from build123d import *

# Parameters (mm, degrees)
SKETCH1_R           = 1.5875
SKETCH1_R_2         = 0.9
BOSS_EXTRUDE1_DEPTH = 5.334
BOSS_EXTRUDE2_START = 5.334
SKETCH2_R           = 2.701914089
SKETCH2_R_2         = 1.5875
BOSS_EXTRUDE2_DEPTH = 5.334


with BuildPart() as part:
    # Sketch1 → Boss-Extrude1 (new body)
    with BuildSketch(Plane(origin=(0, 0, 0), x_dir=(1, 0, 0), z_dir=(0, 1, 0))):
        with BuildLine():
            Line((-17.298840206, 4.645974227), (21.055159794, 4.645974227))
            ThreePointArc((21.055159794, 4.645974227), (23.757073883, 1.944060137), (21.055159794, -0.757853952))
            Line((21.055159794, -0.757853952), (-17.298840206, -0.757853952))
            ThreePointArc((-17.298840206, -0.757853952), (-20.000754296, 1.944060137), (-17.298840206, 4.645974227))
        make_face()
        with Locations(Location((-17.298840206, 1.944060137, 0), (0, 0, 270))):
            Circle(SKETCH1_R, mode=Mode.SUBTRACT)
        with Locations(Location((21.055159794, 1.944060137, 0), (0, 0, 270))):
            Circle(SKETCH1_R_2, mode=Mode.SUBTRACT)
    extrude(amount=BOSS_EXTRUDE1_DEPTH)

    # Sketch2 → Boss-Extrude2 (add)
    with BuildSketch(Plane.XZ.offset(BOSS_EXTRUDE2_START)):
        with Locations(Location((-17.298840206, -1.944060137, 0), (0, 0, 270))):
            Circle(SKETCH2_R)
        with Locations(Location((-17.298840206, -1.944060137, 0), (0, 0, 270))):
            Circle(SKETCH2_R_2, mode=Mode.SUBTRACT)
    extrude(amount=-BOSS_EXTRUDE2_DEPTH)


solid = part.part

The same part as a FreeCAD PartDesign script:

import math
import FreeCAD as App
import Part
import Sketcher

V = App.Vector
Q = App.Units.Quantity

doc = App.newDocument("Part")
body = doc.addObject("PartDesign::Body", "Body")

# Sketch on XZ plane
sketch1 = body.newObject("Sketcher::SketchObject", "Sketch")
sketch1.AttachmentSupport = (doc.getObject("XZ_Plane"), [""])
sketch1.MapMode = "FlatFace"
sketch1.addGeometry([
    Part.LineSegment(V(21.1, -4.6, 0), V(-17.3, -4.6, 0)),  # 0
    Part.ArcOfCircle(Part.Circle(V(-17.3, -1.9, 0), V(0, 0, 1), 2.7), math.radians(90), math.radians(270)),  # 1
    Part.LineSegment(V(-17.3, 0.8, 0), V(21.1, 0.8, 0)),  # 2
    Part.ArcOfCircle(Part.Circle(V(21.1, -1.9, 0), V(0, 0, 1), 2.7), math.radians(-90), math.radians(90)),  # 3
    Part.Circle(V(21.1, -1.9, 0), V(0, 0, 1), 0.9),  # 4
    Part.Circle(V(-17.3, -1.9, 0), V(0, 0, 1), 1.6),  # 5
], False)
sketch1.addConstraint([
    Sketcher.Constraint("Tangent", 0, 2, 1, 2),
    Sketcher.Constraint("Tangent", 1, 1, 2, 1),
    Sketcher.Constraint("Tangent", 2, 2, 3, 2),
    Sketcher.Constraint("Tangent", 3, 1, 0, 1),
    Sketcher.Constraint("Horizontal", 0),
    Sketcher.Constraint("Horizontal", 2),
    Sketcher.Constraint("Coincident", 4, 3, 3, 3),
    Sketcher.Constraint("Coincident", 5, 3, 1, 3),
    Sketcher.Constraint("Diameter", 5, Q("0.125 in")),
    Sketcher.Constraint("DistanceX", 0, 2, 0, 1, Q("1.51 in")),
    Sketcher.Constraint("Diameter", 4, 1.8),
    Sketcher.Constraint("Radius", 1, 2.701914),
    Sketcher.Constraint("DistanceX", 1, 3, -1, 1, 17.29884),
    Sketcher.Constraint("DistanceY", 1, 3, -1, 1, 1.94406),
])
pad1 = body.newObject("PartDesign::Pad", "Pad")
pad1.Profile = sketch1
pad1.Length = Q("0.21 in")
pad1.Reversed = True

# Sketch on XZ plane
sketch2 = body.newObject("Sketcher::SketchObject", "Sketch001")
sketch2.AttachmentSupport = (doc.getObject("XZ_Plane"), [""])
sketch2.MapMode = "FlatFace"
sketch2.AttachmentOffset = App.Placement(V(0, 0, 0.21 * 25.4), App.Rotation())
sketch2.addGeometry([
    Part.Circle(V(-17.3, -1.9, 0), V(0, 0, 1), 2.7),
    Part.Circle(V(-17.3, -1.9, 0), V(0, 0, 1), 1.6),
], False)
sketch2.addConstraint([
    Sketcher.Constraint("Coincident", 1, 3, 0, 3),
    Sketcher.Constraint("Diameter", 1, Q("0.125 in")),
    Sketcher.Constraint("Diameter", 0, 5.403828),
    Sketcher.Constraint("DistanceX", 0, 3, -1, 1, 17.29884),
    Sketcher.Constraint("DistanceY", 0, 3, -1, 1, 1.94406),
])
pad2 = body.newObject("PartDesign::Pad", "Pad001")
pad2.Profile = sketch2
pad2.Length = Q("0.21 in")
pad2.Reversed = True

doc.recompute()
